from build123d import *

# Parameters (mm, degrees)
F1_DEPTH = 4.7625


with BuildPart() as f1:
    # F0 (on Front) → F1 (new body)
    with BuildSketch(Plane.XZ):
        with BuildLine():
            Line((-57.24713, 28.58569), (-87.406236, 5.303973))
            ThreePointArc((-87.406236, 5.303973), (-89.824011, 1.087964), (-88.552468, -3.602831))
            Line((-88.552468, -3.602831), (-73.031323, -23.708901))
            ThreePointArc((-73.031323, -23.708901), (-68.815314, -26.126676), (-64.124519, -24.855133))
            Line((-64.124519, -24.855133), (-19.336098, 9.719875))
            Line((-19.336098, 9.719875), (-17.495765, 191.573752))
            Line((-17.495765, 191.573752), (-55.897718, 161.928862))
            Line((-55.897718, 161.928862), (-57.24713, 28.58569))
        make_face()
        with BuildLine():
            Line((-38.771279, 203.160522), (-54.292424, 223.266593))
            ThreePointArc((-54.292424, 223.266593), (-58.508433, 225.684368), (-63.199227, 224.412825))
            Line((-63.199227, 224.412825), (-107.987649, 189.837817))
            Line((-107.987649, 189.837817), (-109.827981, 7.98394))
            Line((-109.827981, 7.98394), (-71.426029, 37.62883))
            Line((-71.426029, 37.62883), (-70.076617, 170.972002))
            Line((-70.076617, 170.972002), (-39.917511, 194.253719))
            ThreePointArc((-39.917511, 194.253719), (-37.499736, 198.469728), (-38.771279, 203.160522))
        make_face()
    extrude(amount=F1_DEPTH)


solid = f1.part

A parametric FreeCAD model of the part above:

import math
import FreeCAD as App
import Part
import Sketcher
Q = App.Units.Quantity

doc = App.newDocument("Part")
body = doc.addObject("PartDesign::Body", "Body")
body.AllowCompound = True

# Sketch on XZ plane
sketch1 = body.newObject("Sketcher::SketchObject", "Sketch")
sketch1.AttachmentSupport = (doc.getObject("XZ_Plane"), [""])
sketch1.MapMode = "FlatFace"
sketch1.addGeometry([
    Part.LineSegment(App.Vector(-57, 29, 0), App.Vector(-87, 5, 0)),  # 0
    Part.ArcOfCircle(Part.Circle(App.Vector(-84, 0, 0), App.Vector(0, 0, 1), 6), math.radians(128), math.radians(218)),  # 1
    Part.LineSegment(App.Vector(-89, -4, 0), App.Vector(-73, -24, 0)),  # 2
    Part.ArcOfCircle(Part.Circle(App.Vector(-68, -20, 0), App.Vector(0, 0, 1), 6), math.radians(-142), math.radians(-52)),  # 3
    Part.LineSegment(App.Vector(-64, -25, 0), App.Vector(-19, 10, 0)),  # 4
    Part.LineSegment(App.Vector(-19, 10, 0), App.Vector(-17, 192, 0)),  # 5
    Part.LineSegment(App.Vector(-17, 192, 0), App.Vector(-56, 162, 0)),  # 6
    Part.LineSegment(App.Vector(-56, 162, 0), App.Vector(-57, 29, 0)),  # 7
    Part.LineSegment(App.Vector(-39, 203, 0), App.Vector(-54, 223, 0)),  # 8
    Part.ArcOfCircle(Part.Circle(App.Vector(-59, 219, 0), App.Vector(0, 0, 1), 6), math.radians(38), math.radians(128)),  # 9
    Part.LineSegment(App.Vector(-63, 224, 0), App.Vector(-108, 190, 0)),  # 10
    Part.LineSegment(App.Vector(-108, 190, 0), App.Vector(-110, 8, 0)),  # 11
    Part.LineSegment(App.Vector(-110, 8, 0), App.Vector(-71, 38, 0)),  # 12
    Part.LineSegment(App.Vector(-71, 38, 0), App.Vector(-70, 171, 0)),  # 13
    Part.LineSegment(App.Vector(-70, 171, 0), App.Vector(-40, 194, 0)),  # 14
    Part.ArcOfCircle(Part.Circle(App.Vector(-44, 199, 0), App.Vector(0, 0, 1), 6), math.radians(-52), math.radians(38)),  # 15
], False)
sketch1.addConstraint([
    Sketcher.Constraint("Tangent", 0, 2, 1, 1),
    Sketcher.Constraint("Tangent", 1, 2, 2, 1),
    Sketcher.Constraint("Tangent", 2, 2, 3, 1),
    Sketcher.Constraint("Tangent", 3, 2, 4, 1),
    Sketcher.Constraint("Coincident", 4, 2, 5, 1),
    Sketcher.Constraint("Coincident", 5, 2, 6, 1),
    Sketcher.Constraint("Coincident", 6, 2, 7, 1),
    Sketcher.Constraint("Coincident", 7, 2, 0, 1),
    Sketcher.Constraint("Tangent", 8, 2, 9, 1),
    Sketcher.Constraint("Tangent", 9, 2, 10, 1),
    Sketcher.Constraint("Coincident", 10, 2, 11, 1),
    Sketcher.Constraint("Coincident", 11, 2, 12, 1),
    Sketcher.Constraint("Coincident", 12, 2, 13, 1),
    Sketcher.Constraint("Coincident", 13, 2, 14, 1),
    Sketcher.Constraint("Tangent", 14, 2, 15, 1),
    Sketcher.Constraint("Tangent", 15, 2, 8, 1),
    Sketcher.Constraint("Equal", 1, 3),
    Sketcher.Constraint("Equal", 3, 9),
    Sketcher.Constraint("Equal", 9, 15),
    Sketcher.Constraint("Perpendicular", 0, 2),
    Sketcher.Constraint("Perpendicular", 2, 4),
    Sketcher.Constraint("Parallel", 4, 6),
    Sketcher.Constraint("Parallel", 5, 7),
    Sketcher.Constraint("Perpendicular", 6, 8),
    Sketcher.Constraint("Perpendicular", 8, 10),
    Sketcher.Constraint("Parallel", 7, 11),
    Sketcher.Constraint("Parallel", 10, 12),
    Sketcher.Constraint("Parallel", 11, 13),
    Sketcher.Constraint("Parallel", 12, 14),
    Sketcher.Constraint("Equal", 2, 8),
    Sketcher.Constraint("Equal", 4, 10),
    Sketcher.Constraint("Equal", 5, 11),
    Sketcher.Constraint("Equal", 6, 12),
    Sketcher.Constraint("Radius", 1, Q("0.25 in")),
    Sketcher.Constraint("Distance", 2, Q("1 in")),
    Sketcher.Constraint("Distance", 0, Q("1.5 in")),
    Sketcher.Constraint("Distance", 7, Q("5.25 in")),
    Sketcher.Constraint("DistanceY", 1, 2, 9, 3, Q("8.7790999 in")),
    Sketcher.Constraint("DistanceY", 2, 2, -1, 1, 23.708901),
    Sketcher.Constraint("DistanceX", 4, 2, -1, 1, 19.336098),
    Sketcher.Constraint("DistanceY", -1, 1, 13, 2, 170.972002),
    Sketcher.Constraint("DistanceX", 12, 2, 7, 2, 14.178899),
    Sketcher.Constraint("Distance", 5, 181.863189),
    Sketcher.Constraint("Distance", 6, 48.513189),
])
pad1 = body.newObject("PartDesign::Pad", "Pad")
pad1.Profile = sketch1
pad1.Length = Q("0.1875 in")

doc.recompute()
